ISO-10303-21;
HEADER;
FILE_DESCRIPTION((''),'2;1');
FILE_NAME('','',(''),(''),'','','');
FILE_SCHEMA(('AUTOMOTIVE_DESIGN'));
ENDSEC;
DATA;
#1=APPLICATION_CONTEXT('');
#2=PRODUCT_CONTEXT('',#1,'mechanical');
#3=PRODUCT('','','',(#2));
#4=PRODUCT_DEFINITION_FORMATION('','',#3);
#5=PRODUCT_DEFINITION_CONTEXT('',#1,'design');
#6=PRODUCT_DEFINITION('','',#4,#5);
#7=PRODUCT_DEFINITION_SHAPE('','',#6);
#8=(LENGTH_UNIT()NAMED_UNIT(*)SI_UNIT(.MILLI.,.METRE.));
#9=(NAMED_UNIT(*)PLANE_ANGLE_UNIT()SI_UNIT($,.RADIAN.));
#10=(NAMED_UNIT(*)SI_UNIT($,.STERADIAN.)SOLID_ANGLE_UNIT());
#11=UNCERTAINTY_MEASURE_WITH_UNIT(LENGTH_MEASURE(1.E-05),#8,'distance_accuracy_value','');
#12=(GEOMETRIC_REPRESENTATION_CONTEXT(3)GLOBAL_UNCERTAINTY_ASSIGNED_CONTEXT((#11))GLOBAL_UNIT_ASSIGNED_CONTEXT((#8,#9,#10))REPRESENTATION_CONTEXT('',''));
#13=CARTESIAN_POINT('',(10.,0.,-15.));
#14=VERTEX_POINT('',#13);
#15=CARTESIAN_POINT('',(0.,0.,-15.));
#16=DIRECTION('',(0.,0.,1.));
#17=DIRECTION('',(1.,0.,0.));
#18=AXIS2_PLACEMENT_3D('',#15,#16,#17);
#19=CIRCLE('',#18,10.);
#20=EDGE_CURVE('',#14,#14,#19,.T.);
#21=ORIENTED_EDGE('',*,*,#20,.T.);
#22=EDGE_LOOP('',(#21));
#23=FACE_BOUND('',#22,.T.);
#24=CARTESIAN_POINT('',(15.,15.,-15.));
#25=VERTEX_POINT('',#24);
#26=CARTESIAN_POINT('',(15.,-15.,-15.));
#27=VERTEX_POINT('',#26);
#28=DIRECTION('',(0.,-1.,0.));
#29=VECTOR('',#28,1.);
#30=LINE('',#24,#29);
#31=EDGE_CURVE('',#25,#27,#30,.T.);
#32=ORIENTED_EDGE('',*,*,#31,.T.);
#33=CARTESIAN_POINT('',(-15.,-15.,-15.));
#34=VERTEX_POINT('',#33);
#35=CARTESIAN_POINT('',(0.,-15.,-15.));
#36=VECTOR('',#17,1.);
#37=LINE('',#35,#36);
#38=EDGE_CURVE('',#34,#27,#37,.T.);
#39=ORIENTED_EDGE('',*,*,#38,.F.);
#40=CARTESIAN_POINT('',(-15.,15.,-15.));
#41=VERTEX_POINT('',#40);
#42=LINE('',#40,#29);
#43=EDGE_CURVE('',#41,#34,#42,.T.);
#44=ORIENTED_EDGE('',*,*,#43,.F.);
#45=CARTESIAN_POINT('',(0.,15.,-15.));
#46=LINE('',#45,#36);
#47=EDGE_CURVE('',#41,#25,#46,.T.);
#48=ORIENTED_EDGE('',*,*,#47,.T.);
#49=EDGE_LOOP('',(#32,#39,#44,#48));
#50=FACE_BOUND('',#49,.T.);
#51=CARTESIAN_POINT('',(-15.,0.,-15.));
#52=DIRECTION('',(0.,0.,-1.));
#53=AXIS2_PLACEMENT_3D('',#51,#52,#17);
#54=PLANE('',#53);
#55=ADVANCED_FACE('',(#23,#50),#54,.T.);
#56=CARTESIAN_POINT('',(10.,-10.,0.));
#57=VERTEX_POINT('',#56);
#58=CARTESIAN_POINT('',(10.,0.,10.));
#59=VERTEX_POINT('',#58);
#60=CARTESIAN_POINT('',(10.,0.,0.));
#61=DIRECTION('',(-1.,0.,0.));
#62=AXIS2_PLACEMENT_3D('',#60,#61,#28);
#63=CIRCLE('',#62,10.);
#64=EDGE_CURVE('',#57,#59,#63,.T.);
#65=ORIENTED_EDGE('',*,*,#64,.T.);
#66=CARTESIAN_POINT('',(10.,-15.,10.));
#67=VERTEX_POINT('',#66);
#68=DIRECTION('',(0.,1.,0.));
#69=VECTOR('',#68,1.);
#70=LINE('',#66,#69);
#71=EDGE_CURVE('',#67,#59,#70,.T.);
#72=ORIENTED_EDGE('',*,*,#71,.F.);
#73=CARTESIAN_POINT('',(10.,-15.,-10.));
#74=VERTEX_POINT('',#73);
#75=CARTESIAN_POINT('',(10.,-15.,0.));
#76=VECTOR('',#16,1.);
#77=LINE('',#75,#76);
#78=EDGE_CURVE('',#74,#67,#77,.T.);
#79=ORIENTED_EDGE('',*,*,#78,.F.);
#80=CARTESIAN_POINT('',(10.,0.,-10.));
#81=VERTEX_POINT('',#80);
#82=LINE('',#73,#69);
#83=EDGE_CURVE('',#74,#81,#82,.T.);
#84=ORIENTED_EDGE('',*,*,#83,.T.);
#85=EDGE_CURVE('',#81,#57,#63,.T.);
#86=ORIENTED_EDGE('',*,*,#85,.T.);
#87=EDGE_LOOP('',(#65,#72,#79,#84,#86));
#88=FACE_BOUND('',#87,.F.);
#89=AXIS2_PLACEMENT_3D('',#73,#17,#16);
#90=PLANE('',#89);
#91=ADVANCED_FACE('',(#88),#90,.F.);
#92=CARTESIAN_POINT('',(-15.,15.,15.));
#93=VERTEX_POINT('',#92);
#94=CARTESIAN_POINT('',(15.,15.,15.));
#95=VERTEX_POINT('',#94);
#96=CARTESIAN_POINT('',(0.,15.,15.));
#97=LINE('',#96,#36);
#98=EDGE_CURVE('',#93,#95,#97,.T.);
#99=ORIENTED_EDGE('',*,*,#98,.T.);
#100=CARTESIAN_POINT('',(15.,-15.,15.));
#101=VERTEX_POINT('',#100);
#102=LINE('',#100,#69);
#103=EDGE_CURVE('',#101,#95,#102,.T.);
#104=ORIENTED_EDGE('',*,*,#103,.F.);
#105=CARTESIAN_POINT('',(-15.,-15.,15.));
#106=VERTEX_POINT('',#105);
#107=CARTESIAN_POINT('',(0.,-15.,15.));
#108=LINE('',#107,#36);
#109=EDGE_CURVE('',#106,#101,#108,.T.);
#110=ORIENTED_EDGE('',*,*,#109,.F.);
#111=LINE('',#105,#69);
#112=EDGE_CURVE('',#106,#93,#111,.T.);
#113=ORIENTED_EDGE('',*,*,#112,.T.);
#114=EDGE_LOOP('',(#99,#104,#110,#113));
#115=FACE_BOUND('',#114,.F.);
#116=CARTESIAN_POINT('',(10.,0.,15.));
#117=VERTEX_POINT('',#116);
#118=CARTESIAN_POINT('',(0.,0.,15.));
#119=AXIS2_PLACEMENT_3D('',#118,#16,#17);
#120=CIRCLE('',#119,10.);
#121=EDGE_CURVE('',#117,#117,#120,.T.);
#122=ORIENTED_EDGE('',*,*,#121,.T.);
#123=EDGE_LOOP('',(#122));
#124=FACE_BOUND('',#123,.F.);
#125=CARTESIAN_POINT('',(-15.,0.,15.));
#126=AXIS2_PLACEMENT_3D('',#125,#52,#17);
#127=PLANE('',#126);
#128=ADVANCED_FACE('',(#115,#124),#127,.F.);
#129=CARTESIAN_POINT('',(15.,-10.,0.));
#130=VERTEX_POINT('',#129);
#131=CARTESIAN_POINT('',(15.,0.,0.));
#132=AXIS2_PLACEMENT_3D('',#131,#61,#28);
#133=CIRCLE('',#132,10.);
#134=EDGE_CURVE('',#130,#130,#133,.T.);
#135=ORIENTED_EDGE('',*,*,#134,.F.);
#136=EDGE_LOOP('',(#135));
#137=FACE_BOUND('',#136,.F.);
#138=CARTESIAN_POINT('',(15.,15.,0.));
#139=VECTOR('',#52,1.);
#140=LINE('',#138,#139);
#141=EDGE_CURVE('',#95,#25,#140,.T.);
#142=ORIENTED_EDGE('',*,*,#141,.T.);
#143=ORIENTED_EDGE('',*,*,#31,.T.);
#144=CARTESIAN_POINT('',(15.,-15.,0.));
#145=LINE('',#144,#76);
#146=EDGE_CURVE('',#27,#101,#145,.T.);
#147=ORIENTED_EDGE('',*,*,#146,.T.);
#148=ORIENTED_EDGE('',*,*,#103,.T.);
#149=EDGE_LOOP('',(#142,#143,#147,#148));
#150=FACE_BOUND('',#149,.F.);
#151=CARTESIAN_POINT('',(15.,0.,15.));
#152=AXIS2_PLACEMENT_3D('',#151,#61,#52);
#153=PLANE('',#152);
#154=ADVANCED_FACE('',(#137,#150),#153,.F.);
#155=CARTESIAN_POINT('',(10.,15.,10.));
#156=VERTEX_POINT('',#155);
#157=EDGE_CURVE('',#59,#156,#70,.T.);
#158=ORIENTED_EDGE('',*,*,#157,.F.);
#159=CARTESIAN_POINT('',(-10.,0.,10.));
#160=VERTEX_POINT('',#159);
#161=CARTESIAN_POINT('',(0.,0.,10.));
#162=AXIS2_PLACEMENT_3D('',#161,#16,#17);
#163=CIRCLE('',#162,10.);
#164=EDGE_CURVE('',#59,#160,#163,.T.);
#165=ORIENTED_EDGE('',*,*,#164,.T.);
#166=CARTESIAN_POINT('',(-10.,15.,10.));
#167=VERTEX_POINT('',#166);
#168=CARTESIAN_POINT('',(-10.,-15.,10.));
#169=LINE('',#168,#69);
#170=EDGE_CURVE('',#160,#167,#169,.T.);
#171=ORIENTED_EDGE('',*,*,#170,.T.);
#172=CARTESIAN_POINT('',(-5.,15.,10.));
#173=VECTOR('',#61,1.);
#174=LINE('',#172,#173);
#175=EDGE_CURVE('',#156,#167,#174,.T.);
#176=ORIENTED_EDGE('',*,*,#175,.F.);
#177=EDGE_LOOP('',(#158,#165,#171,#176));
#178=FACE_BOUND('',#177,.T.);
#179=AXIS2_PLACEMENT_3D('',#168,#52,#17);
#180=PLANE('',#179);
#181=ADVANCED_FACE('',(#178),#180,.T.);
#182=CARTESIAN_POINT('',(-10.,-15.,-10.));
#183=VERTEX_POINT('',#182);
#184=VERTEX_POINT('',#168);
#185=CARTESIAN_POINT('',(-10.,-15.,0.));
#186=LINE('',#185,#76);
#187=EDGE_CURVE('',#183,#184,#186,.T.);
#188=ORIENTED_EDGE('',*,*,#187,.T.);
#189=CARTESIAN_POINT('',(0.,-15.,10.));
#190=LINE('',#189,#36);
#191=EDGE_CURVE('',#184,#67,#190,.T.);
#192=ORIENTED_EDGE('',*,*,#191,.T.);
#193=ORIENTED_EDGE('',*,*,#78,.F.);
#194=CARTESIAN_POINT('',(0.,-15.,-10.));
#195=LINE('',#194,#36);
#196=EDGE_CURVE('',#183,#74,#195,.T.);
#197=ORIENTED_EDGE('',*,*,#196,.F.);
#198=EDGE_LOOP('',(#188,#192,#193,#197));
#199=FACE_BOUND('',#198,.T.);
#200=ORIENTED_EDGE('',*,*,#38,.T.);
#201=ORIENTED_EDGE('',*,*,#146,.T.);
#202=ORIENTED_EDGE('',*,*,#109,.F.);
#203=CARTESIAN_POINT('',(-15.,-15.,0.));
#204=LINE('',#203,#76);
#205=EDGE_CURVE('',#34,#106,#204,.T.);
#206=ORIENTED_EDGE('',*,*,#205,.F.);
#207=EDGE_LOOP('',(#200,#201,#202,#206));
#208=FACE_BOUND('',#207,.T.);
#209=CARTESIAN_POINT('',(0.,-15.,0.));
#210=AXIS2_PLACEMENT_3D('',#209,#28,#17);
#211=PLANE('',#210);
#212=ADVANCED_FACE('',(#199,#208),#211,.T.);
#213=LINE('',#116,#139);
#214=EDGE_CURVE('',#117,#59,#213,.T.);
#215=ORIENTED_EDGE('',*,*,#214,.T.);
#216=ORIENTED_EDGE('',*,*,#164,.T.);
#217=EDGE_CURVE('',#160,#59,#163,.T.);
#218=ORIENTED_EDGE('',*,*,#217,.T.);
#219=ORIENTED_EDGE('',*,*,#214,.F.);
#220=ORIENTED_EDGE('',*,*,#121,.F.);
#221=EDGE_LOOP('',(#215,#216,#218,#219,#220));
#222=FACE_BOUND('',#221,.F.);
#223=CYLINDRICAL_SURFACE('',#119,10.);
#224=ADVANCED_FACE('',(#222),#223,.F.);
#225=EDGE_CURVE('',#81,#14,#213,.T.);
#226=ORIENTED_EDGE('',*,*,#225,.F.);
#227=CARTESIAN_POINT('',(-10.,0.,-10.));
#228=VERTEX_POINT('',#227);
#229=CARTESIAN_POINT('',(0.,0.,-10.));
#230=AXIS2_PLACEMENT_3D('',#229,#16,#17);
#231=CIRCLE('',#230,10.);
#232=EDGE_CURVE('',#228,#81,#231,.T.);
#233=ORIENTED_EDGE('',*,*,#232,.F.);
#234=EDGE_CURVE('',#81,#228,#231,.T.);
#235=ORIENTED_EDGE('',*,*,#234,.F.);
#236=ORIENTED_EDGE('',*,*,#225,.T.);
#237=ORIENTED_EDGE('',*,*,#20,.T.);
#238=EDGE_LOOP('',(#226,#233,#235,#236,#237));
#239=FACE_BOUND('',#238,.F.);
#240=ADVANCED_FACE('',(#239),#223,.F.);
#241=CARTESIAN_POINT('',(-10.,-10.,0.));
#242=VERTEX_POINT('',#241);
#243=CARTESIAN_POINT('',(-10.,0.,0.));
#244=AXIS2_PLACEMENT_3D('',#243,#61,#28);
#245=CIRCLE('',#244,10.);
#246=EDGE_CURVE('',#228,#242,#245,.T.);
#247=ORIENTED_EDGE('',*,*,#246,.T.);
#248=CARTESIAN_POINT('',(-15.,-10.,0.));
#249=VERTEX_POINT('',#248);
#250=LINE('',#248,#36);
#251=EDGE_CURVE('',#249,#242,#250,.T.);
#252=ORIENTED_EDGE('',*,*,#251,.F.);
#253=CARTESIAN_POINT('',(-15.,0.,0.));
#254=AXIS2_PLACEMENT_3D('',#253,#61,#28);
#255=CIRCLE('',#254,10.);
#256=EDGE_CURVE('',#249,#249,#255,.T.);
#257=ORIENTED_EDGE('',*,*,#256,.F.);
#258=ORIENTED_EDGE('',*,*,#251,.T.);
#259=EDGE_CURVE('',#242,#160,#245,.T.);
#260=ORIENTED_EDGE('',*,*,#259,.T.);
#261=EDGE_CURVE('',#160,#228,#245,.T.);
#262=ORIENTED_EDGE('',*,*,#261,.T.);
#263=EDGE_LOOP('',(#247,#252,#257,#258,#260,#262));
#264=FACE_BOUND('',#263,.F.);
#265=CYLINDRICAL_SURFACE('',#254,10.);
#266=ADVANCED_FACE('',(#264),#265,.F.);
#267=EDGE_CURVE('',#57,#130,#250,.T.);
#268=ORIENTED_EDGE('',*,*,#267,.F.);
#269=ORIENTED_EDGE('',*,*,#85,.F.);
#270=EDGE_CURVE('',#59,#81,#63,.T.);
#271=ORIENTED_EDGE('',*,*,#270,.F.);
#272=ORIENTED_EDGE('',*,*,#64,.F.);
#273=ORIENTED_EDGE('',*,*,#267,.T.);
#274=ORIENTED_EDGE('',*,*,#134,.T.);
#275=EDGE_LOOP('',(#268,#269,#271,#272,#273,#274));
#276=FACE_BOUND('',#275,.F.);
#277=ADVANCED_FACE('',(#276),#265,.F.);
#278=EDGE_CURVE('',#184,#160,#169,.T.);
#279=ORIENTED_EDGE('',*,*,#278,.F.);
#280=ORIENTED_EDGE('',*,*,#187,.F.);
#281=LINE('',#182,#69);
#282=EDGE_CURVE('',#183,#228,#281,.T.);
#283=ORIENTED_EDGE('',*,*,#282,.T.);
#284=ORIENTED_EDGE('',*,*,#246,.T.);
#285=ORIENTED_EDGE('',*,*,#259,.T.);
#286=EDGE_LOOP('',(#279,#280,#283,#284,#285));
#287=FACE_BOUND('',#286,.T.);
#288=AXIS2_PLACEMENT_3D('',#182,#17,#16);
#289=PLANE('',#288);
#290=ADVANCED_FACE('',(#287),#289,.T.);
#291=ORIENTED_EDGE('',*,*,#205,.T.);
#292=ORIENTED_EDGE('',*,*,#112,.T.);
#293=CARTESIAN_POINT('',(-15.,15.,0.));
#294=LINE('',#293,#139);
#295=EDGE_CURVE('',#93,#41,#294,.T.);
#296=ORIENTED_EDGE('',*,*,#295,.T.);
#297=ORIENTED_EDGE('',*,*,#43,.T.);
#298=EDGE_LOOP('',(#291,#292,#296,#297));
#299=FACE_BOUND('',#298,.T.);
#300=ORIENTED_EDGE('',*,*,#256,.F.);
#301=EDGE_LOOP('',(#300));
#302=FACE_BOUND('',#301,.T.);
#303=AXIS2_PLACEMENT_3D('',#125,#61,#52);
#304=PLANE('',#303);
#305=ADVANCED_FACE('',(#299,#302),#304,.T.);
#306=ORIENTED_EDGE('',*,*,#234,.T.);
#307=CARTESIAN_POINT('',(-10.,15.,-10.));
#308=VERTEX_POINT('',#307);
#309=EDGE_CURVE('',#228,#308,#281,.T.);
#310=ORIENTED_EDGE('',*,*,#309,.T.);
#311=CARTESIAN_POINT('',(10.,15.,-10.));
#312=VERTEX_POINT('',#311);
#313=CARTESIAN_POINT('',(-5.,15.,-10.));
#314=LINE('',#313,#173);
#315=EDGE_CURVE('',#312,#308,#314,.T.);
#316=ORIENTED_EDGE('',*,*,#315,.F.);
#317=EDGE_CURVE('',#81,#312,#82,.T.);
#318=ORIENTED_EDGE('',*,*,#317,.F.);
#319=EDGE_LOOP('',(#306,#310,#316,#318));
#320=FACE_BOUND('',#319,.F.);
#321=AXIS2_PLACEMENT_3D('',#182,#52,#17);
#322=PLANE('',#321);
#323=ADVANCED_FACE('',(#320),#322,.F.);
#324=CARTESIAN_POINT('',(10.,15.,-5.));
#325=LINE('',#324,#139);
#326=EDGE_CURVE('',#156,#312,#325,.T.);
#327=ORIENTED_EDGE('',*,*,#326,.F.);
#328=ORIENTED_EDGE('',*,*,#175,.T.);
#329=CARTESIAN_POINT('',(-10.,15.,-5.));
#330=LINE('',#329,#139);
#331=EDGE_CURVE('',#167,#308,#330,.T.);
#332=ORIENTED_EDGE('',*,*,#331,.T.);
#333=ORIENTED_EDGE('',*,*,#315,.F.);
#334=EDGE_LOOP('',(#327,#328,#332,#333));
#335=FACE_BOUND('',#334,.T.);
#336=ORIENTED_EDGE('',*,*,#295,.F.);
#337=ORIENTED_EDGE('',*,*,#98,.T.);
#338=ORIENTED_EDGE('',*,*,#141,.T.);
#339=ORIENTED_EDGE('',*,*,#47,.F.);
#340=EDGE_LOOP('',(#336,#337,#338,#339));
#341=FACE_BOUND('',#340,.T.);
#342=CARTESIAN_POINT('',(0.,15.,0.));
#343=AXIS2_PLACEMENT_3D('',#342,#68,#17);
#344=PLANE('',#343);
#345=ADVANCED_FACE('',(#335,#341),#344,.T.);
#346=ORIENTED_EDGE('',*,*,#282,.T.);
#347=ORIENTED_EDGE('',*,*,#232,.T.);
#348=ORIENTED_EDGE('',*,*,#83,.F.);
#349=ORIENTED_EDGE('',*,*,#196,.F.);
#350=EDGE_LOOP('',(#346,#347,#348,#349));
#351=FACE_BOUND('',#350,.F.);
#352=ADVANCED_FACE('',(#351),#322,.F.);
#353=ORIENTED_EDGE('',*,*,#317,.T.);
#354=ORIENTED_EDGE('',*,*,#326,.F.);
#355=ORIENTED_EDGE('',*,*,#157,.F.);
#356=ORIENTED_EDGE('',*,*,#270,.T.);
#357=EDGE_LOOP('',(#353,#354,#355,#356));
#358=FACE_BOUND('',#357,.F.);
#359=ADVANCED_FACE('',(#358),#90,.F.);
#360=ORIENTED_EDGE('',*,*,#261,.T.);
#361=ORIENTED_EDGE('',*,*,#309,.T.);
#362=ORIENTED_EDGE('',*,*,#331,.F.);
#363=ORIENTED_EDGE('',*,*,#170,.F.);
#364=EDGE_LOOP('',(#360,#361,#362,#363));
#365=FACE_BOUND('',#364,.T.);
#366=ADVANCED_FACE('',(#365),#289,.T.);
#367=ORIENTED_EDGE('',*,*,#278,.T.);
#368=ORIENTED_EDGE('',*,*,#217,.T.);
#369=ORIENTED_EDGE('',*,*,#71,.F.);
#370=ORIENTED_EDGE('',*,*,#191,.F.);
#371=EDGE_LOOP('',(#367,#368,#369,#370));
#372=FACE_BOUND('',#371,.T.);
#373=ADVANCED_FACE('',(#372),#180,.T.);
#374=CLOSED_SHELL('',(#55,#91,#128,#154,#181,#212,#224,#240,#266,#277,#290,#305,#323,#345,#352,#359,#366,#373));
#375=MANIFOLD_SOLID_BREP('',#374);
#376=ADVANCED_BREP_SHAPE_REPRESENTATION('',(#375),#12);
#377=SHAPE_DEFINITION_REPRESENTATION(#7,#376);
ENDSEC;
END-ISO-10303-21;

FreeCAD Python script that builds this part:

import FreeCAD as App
import Part
import Sketcher

V = App.Vector
Q = App.Units.Quantity


def add_polygon(sketch, points):
    """Adds a closed chain of lines whose ends are joined by coincident constraints."""
    first, n = sketch.GeometryCount, len(points)
    for a, b in zip(points, points[1:] + points[:1]):
        sketch.addGeometry(Part.LineSegment(App.Vector(*a, 0), App.Vector(*b, 0)), False)
    for i in range(n):
        sketch.addConstraint(Sketcher.Constraint("Coincident", first + i, 2, first + (i + 1) % n, 1))

doc = App.newDocument("Part")
params = doc.addObject("Spreadsheet::Sheet", "Params")
for row, (alias, value) in enumerate([
    ("sketch1_width", "30 mm"),
    ("pad1_length", "15 mm"),
    ("sketch2_width", "30 mm"),
    ("pad2_length", "15 mm"),
    ("sketch3_width", "20 mm"),
    ("sketch4_diameter", "20 mm"),
    ("sketch5_diameter", "20 mm"),
], start=1):
    params.set(f"A{row}", alias)
    params.set(f"B{row}", "=" + value)
    params.setAlias(f"B{row}", alias)

body = doc.addObject("PartDesign::Body", "Body")

# Sketch on XZ plane
sketch1 = body.newObject("Sketcher::SketchObject", "Sketch")
sketch1.AttachmentSupport = (doc.getObject("XZ_Plane"), [""])
sketch1.MapMode = "FlatFace"
add_polygon(sketch1, [(-15, 15), (-15, -15), (15, -15), (15, 15)])  # lines 0-3
sketch1.addConstraint([
    Sketcher.Constraint("Vertical", 0),
    Sketcher.Constraint("Horizontal", 1),
    Sketcher.Constraint("Vertical", 2),
    Sketcher.Constraint("Horizontal", 3),
    Sketcher.Constraint("Symmetric", 0, 2, 2, 2, -1, 1),
    Sketcher.Constraint("Equal", 3, 0),
    Sketcher.Constraint("DistanceX", 1, 1, 1, 2, Q("30 mm")),
])
sketch1.setExpression("Constraints[10]", "Params.sketch1_width")
pad1 = body.newObject("PartDesign::Pad", "Pad")
pad1.Profile = sketch1
pad1.setExpression("Length", "Params.pad1_length")

# Sketch on XZ plane
sketch2 = body.newObject("Sketcher::SketchObject", "Sketch001")
sketch2.AttachmentSupport = (doc.getObject("XZ_Plane"), [""])
sketch2.MapMode = "FlatFace"
add_polygon(sketch2, [(-15, -15), (-15, 15), (15, 15), (15, -15)])  # lines 0-3
sketch2.addConstraint([
    Sketcher.Constraint("Vertical", 0),
    Sketcher.Constraint("Horizontal", 1),
    Sketcher.Constraint("Vertical", 2),
    Sketcher.Constraint("Horizontal", 3),
    Sketcher.Constraint("Symmetric", 0, 2, 2, 2, -1, 1),
    Sketcher.Constraint("Equal", 3, 0),
    Sketcher.Constraint("DistanceX", 1, 1, 1, 2, Q("30 mm")),
])
sketch2.setExpression("Constraints[10]", "Params.sketch2_width")
pad2 = body.newObject("PartDesign::Pad", "Pad001")
pad2.Profile = sketch2
pad2.setExpression("Length", "Params.pad2_length")
pad2.Reversed = True

# Sketch on XZ plane
sketch3 = body.newObject("Sketcher::SketchObject", "Sketch002")
sketch3.AttachmentSupport = (doc.getObject("XZ_Plane"), [""])
sketch3.MapMode = "FlatFace"
sketch3.AttachmentOffset = App.Placement(V(0, 0, 15), App.Rotation())
add_polygon(sketch3, [(-10, 10), (-10, -10), (10, -10), (10, 10)])  # lines 0-3
sketch3.addConstraint([
    Sketcher.Constraint("Vertical", 0),
    Sketcher.Constraint("Horizontal", 1),
    Sketcher.Constraint("Vertical", 2),
    Sketcher.Constraint("Horizontal", 3),
    Sketcher.Constraint("Symmetric", 0, 2, 2, 2, -1, 1),
    Sketcher.Constraint("Equal", 3, 0),
    Sketcher.Constraint("DistanceX", 1, 1, 1, 2, Q("20 mm")),
])
sketch3.setExpression("Constraints[10]", "Params.sketch3_width")
pocket1 = body.newObject("PartDesign::Pocket", "Pocket")
pocket1.Profile = sketch3
pocket1.Type = "ThroughAll"

# Sketch on XY plane
sketch4 = body.newObject("Sketcher::SketchObject", "Sketch003")
sketch4.AttachmentSupport = (doc.getObject("XY_Plane"), [""])
sketch4.MapMode = "FlatFace"
sketch4.AttachmentOffset = App.Placement(V(0, 0, 15), App.Rotation())
sketch4.addGeometry(Part.Circle(V(0, 0, 0), V(0, 0, 1), 10), False)
sketch4.addConstraint([
    Sketcher.Constraint("Coincident", 0, 3, -1, 1),
    Sketcher.Constraint("Diameter", 0, Q("20 mm")),
])
sketch4.setExpression("Constraints[1]", "Params.sketch4_diameter")
pocket2 = body.newObject("PartDesign::Pocket", "Pocket001")
pocket2.Profile = sketch4
pocket2.Type = "ThroughAll"

# Sketch on YZ plane
sketch5 = body.newObject("Sketcher::SketchObject", "Sketch004")
sketch5.AttachmentSupport = (doc.getObject("YZ_Plane"), [""])
sketch5.MapMode = "FlatFace"
sketch5.AttachmentOffset = App.Placement(V(0, 0, -15), App.Rotation())
sketch5.addGeometry(Part.Circle(V(0, 0, 0), V(0, 0, 1), 10), False)
sketch5.addConstraint([
    Sketcher.Constraint("Coincident", 0, 3, -1, 1),
    Sketcher.Constraint("Diameter", 0, Q("20 mm")),
])
sketch5.setExpression("Constraints[1]", "Params.sketch5_diameter")
pocket3 = body.newObject("PartDesign::Pocket", "Pocket002")
pocket3.Profile = sketch5
pocket3.Type = "ThroughAll"
pocket3.Reversed = True

doc.recompute()
